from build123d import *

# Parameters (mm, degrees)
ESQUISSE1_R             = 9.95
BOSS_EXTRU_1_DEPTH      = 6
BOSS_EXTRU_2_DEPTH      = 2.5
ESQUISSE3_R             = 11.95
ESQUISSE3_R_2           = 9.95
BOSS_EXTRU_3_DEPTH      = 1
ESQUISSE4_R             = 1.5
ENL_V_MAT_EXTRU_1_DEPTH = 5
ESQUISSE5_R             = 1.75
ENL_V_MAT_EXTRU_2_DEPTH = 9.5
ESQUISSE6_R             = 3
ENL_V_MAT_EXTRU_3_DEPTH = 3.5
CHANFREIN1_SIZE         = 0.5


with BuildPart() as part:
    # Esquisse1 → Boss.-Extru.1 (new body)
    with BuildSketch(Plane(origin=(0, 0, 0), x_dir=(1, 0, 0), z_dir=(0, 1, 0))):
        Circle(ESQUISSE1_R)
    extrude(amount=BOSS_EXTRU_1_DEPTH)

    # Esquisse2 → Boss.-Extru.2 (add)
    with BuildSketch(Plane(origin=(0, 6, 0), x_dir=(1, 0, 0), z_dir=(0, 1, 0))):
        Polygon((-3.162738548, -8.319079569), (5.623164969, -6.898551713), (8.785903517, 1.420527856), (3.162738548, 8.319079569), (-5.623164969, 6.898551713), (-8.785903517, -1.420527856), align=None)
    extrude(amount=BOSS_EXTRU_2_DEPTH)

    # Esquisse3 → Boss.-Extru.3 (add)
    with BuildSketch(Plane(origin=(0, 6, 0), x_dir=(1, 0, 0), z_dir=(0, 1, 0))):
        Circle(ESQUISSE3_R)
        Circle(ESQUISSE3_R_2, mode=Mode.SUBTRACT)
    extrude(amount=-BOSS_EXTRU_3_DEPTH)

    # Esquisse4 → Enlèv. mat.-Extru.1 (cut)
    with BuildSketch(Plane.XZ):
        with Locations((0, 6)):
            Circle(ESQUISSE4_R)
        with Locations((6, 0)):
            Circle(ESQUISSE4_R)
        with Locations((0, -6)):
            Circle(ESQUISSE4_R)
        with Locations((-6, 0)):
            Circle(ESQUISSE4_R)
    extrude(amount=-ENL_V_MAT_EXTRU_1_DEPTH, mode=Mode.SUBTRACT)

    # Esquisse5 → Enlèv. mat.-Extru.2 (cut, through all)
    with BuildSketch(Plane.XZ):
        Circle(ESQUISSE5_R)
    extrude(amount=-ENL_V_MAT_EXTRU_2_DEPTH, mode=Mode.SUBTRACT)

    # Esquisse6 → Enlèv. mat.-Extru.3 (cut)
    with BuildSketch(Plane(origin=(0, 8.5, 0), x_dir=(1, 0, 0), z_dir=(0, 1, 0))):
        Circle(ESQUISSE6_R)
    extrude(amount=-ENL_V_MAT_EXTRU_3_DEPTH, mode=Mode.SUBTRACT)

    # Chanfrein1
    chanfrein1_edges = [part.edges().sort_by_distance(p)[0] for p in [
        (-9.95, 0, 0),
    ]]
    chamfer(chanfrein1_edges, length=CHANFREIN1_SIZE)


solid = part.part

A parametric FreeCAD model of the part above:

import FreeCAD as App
import Part
import Sketcher

V = App.Vector
Q = App.Units.Quantity


def edges_at(feature, points):
    """Names of the edges that pass closest to the given points."""
    edges = feature.Shape.Edges
    near = lambda p: min(range(len(edges)), key=lambda i: edges[i].distToShape(Part.Vertex(*p))[0])
    return sorted({f"Edge{near(p) + 1}" for p in points})


def add_polygon(sketch, points):
    """Adds a closed chain of lines whose ends are joined by coincident constraints."""
    first, n = sketch.GeometryCount, len(points)
    for a, b in zip(points, points[1:] + points[:1]):
        sketch.addGeometry(Part.LineSegment(App.Vector(*a, 0), App.Vector(*b, 0)), False)
    for i in range(n):
        sketch.addConstraint(Sketcher.Constraint("Coincident", first + i, 2, first + (i + 1) % n, 1))

doc = App.newDocument("Part")
body = doc.addObject("PartDesign::Body", "Body")

sketch1 = body.newObject("Sketcher::SketchObject", "Sketch")
sketch1.AttachmentSupport = (doc.getObject("XZ_Plane"), [""])
sketch1.MapMode = "FlatFace"
sketch1.addGeometry(Part.Circle(V(0, 0, 0), V(0, 0, 1), 10), False)
sketch1.addConstraint([
    Sketcher.Constraint("Coincident", 0, 3, -1, 1),
    Sketcher.Constraint("Diameter", 0, Q("19.9 mm")),
])
pad1 = body.newObject("PartDesign::Pad", "Pad")
pad1.Profile = sketch1
pad1.Length = 6
pad1.Reversed = True

sketch2 = body.newObject("Sketcher::SketchObject", "Sketch001")
sketch2.AttachmentSupport = (doc.getObject("XZ_Plane"), [""])
sketch2.MapMode = "FlatFace"
sketch2.AttachmentOffset = App.Placement(V(0, 0, -6), App.Rotation())
add_polygon(sketch2, [(-3, 8), (6, 7), (9, -1), (3, -8), (-6, -7), (-9, 1)])
sketch2.addConstraint([
    Sketcher.Constraint("Symmetric", 0, 2, 3, 2, -1, 1),
    Sketcher.Constraint("Symmetric", 1, 2, 4, 2, -1, 1),
    Sketcher.Constraint("Symmetric", 2, 2, 5, 2, -1, 1),
    Sketcher.Constraint("Equal", 0, 1),
    Sketcher.Constraint("Equal", 1, 2),
    Sketcher.Constraint("Distance", 0, Q("8.9 mm")),
    Sketcher.Constraint("DistanceY", -1, 1, 0, 2, Q("6.898552 mm")),
    Sketcher.Constraint("DistanceX", -1, 1, 2, 2, Q("3.162739 mm")),
    Sketcher.Constraint("DistanceY", 2, 2, -1, 1, Q("8.31908 mm")),
])
pad2 = body.newObject("PartDesign::Pad", "Pad001")
pad2.Profile = sketch2
pad2.Length = 2.5
pad2.Reversed = True

sketch3 = body.newObject("Sketcher::SketchObject", "Sketch002")
sketch3.AttachmentSupport = (doc.getObject("XZ_Plane"), [""])
sketch3.MapMode = "FlatFace"
sketch3.AttachmentOffset = App.Placement(V(0, 0, -6), App.Rotation())
sketch3.addGeometry([
    Part.Circle(V(0, 0, 0), V(0, 0, 1), 12),
    Part.Circle(V(0, 0, 0), V(0, 0, 1), 10),
], False)
sketch3.addConstraint([
    Sketcher.Constraint("Coincident", 0, 3, -1, 1),
    Sketcher.Constraint("Coincident", 1, 3, -1, 1),
    Sketcher.Constraint("Diameter", 0, Q("23.9 mm")),
    Sketcher.Constraint("Diameter", 1, Q("19.9 mm")),
])
pad3 = body.newObject("PartDesign::Pad", "Pad002")
pad3.Profile = sketch3
pad3.Length = 1

sketch4 = body.newObject("Sketcher::SketchObject", "Sketch003")
sketch4.AttachmentSupport = (doc.getObject("XZ_Plane"), [""])
sketch4.MapMode = "FlatFace"
sketch4.addGeometry([
    Part.Circle(V(0, 6, 0), V(0, 0, 1), 1.5),
    Part.Circle(V(6, 0, 0), V(0, 0, 1), 1.5),
    Part.Circle(V(0, -6, 0), V(0, 0, 1), 1.5),
    Part.Circle(V(-6, 0, 0), V(0, 0, 1), 1.5),
], False)
sketch4.addConstraint([
    Sketcher.Constraint("Equal", 0, 1),
    Sketcher.Constraint("Equal", 1, 2),
    Sketcher.Constraint("Equal", 2, 3),
    Sketcher.Constraint("Symmetric", 0, 3, 2, 3, -1, 1),
    Sketcher.Constraint("Symmetric", 1, 3, 3, 3, -1, 1),
    Sketcher.Constraint("PointOnObject", 0, 3, -2),
    Sketcher.Constraint("PointOnObject", 1, 3, -1),
    Sketcher.Constraint("Diameter", 0, Q("3 mm")),
    Sketcher.Constraint("DistanceY", -1, 1, 0, 3, Q("6 mm")),
    Sketcher.Constraint("DistanceX", -1, 1, 1, 3, Q("6 mm")),
])
pocket1 = body.newObject("PartDesign::Pocket", "Pocket")
pocket1.Profile = sketch4
pocket1.Length = 5

sketch5 = body.newObject("Sketcher::SketchObject", "Sketch004")
sketch5.AttachmentSupport = (doc.getObject("XZ_Plane"), [""])
sketch5.MapMode = "FlatFace"
sketch5.addGeometry(Part.Circle(V(0, 0, 0), V(0, 0, 1), 1.8), False)
sketch5.addConstraint([
    Sketcher.Constraint("Coincident", 0, 3, -1, 1),
    Sketcher.Constraint("Diameter", 0, Q("3.5 mm")),
])
pocket2 = body.newObject("PartDesign::Pocket", "Pocket001")
pocket2.Profile = sketch5
pocket2.Type = "ThroughAll"

sketch6 = body.newObject("Sketcher::SketchObject", "Sketch005")
sketch6.AttachmentSupport = (doc.getObject("XZ_Plane"), [""])
sketch6.MapMode = "FlatFace"
sketch6.AttachmentOffset = App.Placement(V(0, 0, -8.5), App.Rotation())
sketch6.addGeometry(Part.Circle(V(0, 0, 0), V(0, 0, 1), 3), False)
sketch6.addConstraint([
    Sketcher.Constraint("Coincident", 0, 3, -1, 1),
    Sketcher.Constraint("Diameter", 0, Q("6 mm")),
])
pocket3 = body.newObject("PartDesign::Pocket", "Pocket002")
pocket3.Profile = sketch6
pocket3.Length = 3.5
pocket3.Reversed = True
doc.recompute()

chamfer = body.newObject("PartDesign::Chamfer", "Chamfer")
chamfer.Base = (pocket3, edges_at(pocket3, [(-9.95, 0, 0)]))
chamfer.Size = 0.5

doc.recompute()
